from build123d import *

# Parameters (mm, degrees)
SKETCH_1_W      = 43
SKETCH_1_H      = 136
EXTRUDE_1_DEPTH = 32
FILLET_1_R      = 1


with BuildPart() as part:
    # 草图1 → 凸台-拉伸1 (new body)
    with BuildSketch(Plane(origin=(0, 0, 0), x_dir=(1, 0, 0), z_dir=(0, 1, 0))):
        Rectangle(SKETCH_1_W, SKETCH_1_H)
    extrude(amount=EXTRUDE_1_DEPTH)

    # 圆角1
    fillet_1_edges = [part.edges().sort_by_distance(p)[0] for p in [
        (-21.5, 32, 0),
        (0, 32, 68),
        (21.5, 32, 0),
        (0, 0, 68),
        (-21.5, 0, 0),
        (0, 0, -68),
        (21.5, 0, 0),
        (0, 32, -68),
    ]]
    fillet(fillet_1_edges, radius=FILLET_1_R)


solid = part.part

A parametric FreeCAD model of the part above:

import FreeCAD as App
import Part
import Sketcher

V = App.Vector
Q = App.Units.Quantity


def edges_at(feature, points):
    """Names of the edges that pass closest to the given points."""
    edges = feature.Shape.Edges
    near = lambda p: min(range(len(edges)), key=lambda i: edges[i].distToShape(Part.Vertex(*p))[0])
    return sorted({f"Edge{near(p) + 1}" for p in points})


def add_polygon(sketch, points):
    """Adds a closed chain of lines whose ends are joined by coincident constraints."""
    first, n = sketch.GeometryCount, len(points)
    for a, b in zip(points, points[1:] + points[:1]):
        sketch.addGeometry(Part.LineSegment(App.Vector(*a, 0), App.Vector(*b, 0)), False)
    for i in range(n):
        sketch.addConstraint(Sketcher.Constraint("Coincident", first + i, 2, first + (i + 1) % n, 1))

doc = App.newDocument("Part")
body = doc.addObject("PartDesign::Body", "Body")

# Sketch on XZ plane
sketch1 = doc.addObject("Sketcher::SketchObject", "Sketch")
body.addObject(sketch1)
sketch1.AttachmentSupport = (doc.XZ_Plane, [""])
sketch1.MapMode = "FlatFace"
add_polygon(sketch1, [(-22, -68), (-22, 68), (22, 68), (22, -68)])  # lines 0-3
sketch1.addConstraint([
    Sketcher.Constraint("Vertical", 0),
    Sketcher.Constraint("Horizontal", 1),
    Sketcher.Constraint("Vertical", 2),
    Sketcher.Constraint("Horizontal", 3),
    Sketcher.Constraint("Symmetric", 0, 2, 2, 2, -1, 1),
    Sketcher.Constraint("DistanceX", 1, 1, 1, 2, Q("43 mm")),
    Sketcher.Constraint("DistanceY", 0, 1, 0, 2, Q("136 mm")),
])
pad1 = doc.addObject("PartDesign::Pad", "Pad")
body.addObject(pad1)
pad1.Profile = sketch1
pad1.Length = 32
pad1.Reversed = True
doc.recompute()

fillet = doc.addObject("PartDesign::Fillet", "Fillet")
body.addObject(fillet)
fillet.Base = (pad1, edges_at(pad1, [
    (-21.5, 32, 0),
    (0, 32, 68),
    (21.5, 32, 0),
    (0, 0, 68),
    (-21.5, 0, 0),
    (0, 0, -68),
    (21.5, 0, 0),
    (0, 32, -68),
]))
fillet.Radius = 1

doc.recompute()
